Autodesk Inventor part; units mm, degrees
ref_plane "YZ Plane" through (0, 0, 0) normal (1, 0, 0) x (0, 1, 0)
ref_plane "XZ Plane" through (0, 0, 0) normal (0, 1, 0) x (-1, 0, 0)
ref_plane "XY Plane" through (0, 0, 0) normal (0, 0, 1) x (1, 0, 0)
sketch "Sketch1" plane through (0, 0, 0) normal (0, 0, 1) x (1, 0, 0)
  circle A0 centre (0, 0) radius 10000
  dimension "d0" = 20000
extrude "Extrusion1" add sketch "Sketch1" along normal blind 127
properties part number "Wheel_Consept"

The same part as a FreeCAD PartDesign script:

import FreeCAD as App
import Part
import Sketcher

doc = App.newDocument("Part")
body = doc.addObject("PartDesign::Body", "Body")

# Sketch on XY plane
sketch1 = body.newObject("Sketcher::SketchObject", "Sketch")
sketch1.AttachmentSupport = (doc.getObject("XY_Plane"), [""])
sketch1.MapMode = "FlatFace"
sketch1.addGeometry(Part.Circle(App.Vector(0, 0, 0), App.Vector(0, 0, 1), 10000), False)
sketch1.addConstraint(Sketcher.Constraint("Coincident", 0, 3, -1, 1))
sketch1.addConstraint(Sketcher.Constraint("Diameter", 0, 20000.0))
pad1 = body.newObject("PartDesign::Pad", "Pad")
pad1.Profile = sketch1
pad1.Length = 127

doc.recompute()
